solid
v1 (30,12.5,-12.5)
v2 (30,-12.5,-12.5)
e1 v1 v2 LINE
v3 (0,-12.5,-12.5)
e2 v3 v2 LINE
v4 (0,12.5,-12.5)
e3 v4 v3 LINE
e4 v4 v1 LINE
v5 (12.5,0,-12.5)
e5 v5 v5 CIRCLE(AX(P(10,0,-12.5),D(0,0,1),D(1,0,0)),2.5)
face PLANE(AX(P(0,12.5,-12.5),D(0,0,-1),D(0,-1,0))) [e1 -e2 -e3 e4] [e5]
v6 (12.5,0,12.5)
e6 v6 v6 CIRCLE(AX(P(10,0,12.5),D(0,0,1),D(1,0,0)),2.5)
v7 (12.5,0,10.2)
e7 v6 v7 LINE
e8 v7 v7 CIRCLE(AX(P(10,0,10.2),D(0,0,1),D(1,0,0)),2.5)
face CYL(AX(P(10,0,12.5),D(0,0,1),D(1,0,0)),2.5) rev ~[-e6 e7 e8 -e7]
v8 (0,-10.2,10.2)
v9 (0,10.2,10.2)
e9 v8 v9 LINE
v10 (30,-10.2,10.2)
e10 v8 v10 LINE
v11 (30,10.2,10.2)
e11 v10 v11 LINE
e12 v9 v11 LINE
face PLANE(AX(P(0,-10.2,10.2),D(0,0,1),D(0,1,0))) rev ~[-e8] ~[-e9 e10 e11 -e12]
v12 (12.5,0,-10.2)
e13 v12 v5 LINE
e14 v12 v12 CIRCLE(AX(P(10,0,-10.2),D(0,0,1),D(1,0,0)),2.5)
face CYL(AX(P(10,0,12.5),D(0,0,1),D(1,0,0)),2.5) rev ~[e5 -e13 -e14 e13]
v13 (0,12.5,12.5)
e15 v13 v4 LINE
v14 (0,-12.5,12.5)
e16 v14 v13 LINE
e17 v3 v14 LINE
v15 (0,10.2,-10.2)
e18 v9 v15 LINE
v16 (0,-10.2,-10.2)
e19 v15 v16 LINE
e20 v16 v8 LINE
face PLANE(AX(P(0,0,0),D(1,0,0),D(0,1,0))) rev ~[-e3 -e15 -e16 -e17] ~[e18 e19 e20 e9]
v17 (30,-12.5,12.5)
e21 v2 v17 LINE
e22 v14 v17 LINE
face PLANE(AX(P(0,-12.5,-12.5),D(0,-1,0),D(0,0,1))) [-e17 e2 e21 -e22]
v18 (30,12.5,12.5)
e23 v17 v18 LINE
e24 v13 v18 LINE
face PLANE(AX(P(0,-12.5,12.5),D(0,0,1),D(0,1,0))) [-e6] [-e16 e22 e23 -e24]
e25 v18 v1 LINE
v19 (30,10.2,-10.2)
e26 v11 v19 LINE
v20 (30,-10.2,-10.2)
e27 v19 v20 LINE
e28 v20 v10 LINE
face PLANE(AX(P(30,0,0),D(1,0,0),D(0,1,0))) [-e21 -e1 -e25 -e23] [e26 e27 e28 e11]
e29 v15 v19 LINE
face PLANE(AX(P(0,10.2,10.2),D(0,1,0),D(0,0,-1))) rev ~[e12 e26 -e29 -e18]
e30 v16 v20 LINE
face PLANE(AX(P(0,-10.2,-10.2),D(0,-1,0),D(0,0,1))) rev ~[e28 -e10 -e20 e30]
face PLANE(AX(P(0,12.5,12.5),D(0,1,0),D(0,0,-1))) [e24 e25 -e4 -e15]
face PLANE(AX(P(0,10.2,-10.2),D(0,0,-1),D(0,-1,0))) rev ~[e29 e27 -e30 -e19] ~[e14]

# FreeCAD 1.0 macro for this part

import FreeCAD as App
import Part
import Sketcher


def add_polygon(sketch, points):
    """Adds a closed chain of lines whose ends are joined by coincident constraints."""
    first, n = sketch.GeometryCount, len(points)
    for a, b in zip(points, points[1:] + points[:1]):
        sketch.addGeometry(Part.LineSegment(App.Vector(*a, 0), App.Vector(*b, 0)), False)
    for i in range(n):
        sketch.addConstraint(Sketcher.Constraint("Coincident", first + i, 2, first + (i + 1) % n, 1))

doc = App.newDocument("Part")
body = doc.addObject("PartDesign::Body", "Body")

sketch1 = doc.addObject("Sketcher::SketchObject", "Sketch")
body.addObject(sketch1)
sketch1.AttachmentSupport = (doc.YZ_Plane, [""])
sketch1.MapMode = "FlatFace"
add_polygon(sketch1, [(12.5, 12.5), (-12.5, 12.5), (-12.5, -12.5), (12.5, -12.5)])
add_polygon(sketch1, [(-10.2, -10.2), (-10.2, 10.2), (10.2, 10.2), (10.2, -10.2)])
sketch1.addConstraint([
    Sketcher.Constraint("Horizontal", 0),
    Sketcher.Constraint("Vertical", 1),
    Sketcher.Constraint("Horizontal", 2),
    Sketcher.Constraint("Vertical", 3),
    Sketcher.Constraint("Vertical", 4),
    Sketcher.Constraint("Horizontal", 5),
    Sketcher.Constraint("Vertical", 6),
    Sketcher.Constraint("Horizontal", 7),
    Sketcher.Constraint("Symmetric", 0, 2, 2, 2, -1, 1),
    Sketcher.Constraint("Symmetric", 4, 2, 6, 2, -1, 1),
    Sketcher.Constraint("Equal", 2, 1),
    Sketcher.Constraint("Equal", 7, 4),
    Sketcher.Constraint("DistanceX", 0, 2, 0, 1, 25.0),
    Sketcher.Constraint("DistanceX", 0, 2, 4, 2, 2.3),
])
pad1 = doc.addObject("PartDesign::Pad", "Pad")
body.addObject(pad1)
pad1.Profile = sketch1
pad1.Length = 30

sketch2 = doc.addObject("Sketcher::SketchObject", "Sketch001")
body.addObject(sketch2)
sketch2.AttachmentSupport = (doc.XY_Plane, [""])
sketch2.MapMode = "FlatFace"
sketch2.AttachmentOffset = App.Placement(App.Vector(0, 0, 12.5), App.Rotation())
sketch2.addGeometry(Part.Circle(App.Vector(10, 0, 0), App.Vector(0, 0, 1), 2.5), False)
sketch2.addConstraint([
    Sketcher.Constraint("PointOnObject", 0, 3, -1),
    Sketcher.Constraint("Diameter", 0, 5.0),
    Sketcher.Constraint("DistanceX", -1, 1, 0, 3, 10.0),
])
pocket1 = doc.addObject("PartDesign::Pocket", "Pocket")
body.addObject(pocket1)
pocket1.Profile = sketch2
pocket1.Type = "ThroughAll"

doc.recompute()
